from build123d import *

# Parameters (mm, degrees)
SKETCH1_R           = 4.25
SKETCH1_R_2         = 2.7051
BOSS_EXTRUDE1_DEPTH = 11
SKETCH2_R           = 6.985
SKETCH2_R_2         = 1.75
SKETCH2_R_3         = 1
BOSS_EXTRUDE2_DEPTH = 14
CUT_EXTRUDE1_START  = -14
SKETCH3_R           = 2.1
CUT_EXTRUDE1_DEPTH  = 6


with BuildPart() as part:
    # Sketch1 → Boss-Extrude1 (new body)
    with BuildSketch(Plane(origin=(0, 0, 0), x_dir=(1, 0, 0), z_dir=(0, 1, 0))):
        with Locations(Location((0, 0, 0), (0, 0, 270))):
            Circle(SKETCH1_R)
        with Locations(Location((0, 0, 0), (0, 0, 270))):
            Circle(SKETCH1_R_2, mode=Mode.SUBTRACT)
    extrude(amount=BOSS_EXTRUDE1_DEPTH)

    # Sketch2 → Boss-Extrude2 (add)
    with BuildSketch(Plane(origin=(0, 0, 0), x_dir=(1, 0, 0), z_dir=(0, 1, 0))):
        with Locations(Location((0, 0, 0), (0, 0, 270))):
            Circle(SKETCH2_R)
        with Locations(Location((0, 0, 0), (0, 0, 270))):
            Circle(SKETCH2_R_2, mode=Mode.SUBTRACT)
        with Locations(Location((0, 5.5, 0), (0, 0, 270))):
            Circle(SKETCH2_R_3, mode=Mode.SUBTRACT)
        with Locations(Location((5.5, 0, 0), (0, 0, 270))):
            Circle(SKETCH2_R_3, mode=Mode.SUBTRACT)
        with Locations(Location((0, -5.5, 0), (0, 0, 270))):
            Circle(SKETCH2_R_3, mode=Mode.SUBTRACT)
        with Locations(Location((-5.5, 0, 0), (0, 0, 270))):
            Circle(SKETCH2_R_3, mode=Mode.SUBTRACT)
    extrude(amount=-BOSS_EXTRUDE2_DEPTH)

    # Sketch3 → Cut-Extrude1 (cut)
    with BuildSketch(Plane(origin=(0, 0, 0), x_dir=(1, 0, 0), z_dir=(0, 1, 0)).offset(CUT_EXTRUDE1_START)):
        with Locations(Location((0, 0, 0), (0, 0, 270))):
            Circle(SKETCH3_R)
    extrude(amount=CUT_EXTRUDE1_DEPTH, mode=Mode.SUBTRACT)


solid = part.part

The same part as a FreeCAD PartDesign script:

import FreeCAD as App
import Part
import Sketcher
from FreeCAD import Vector
Q = App.Units.Quantity

doc = App.newDocument("Part")
body = doc.addObject("PartDesign::Body", "Body")

# Sketch on XZ plane
sketch1 = body.newObject("Sketcher::SketchObject", "Sketch")
sketch1.AttachmentSupport = (doc.getObject("XZ_Plane"), [""])
sketch1.MapMode = "FlatFace"
sketch1.addGeometry([
    Part.Circle(Vector(0, 0, 0), Vector(0, 0, 1), 4.25),
    Part.Circle(Vector(0, 0, 0), Vector(0, 0, 1), 2.7051),
], False)
sketch1.addConstraint([
    Sketcher.Constraint("Coincident", 0, 3, -1, 1),
    Sketcher.Constraint("Coincident", 1, 3, -1, 1),
    Sketcher.Constraint("Diameter", 0, Q("8.5 mm")),
    Sketcher.Constraint("Diameter", 1, Q("5.4102 mm")),
])
pad1 = body.newObject("PartDesign::Pad", "Pad")
pad1.Profile = sketch1
pad1.Length = 11
pad1.Reversed = True

# Sketch on XZ plane
sketch2 = body.newObject("Sketcher::SketchObject", "Sketch001")
sketch2.AttachmentSupport = (doc.getObject("XZ_Plane"), [""])
sketch2.MapMode = "FlatFace"
sketch2.addGeometry([
    Part.Circle(Vector(0, 0, 0), Vector(0, 0, 1), 6.985),  # 0
    Part.Circle(Vector(0, -5.5, 0), Vector(0, 0, 1), 1),  # 1
    Part.Circle(Vector(-5.5, 0, 0), Vector(0, 0, 1), 1),  # 2
    Part.Circle(Vector(5.5, 0, 0), Vector(0, 0, 1), 1),  # 3
    Part.Circle(Vector(0, 0, 0), Vector(0, 0, 1), 1.75),  # 4
    Part.Circle(Vector(0, 5.5, 0), Vector(0, 0, 1), 1),  # 5
], False)
sketch2.addConstraint([
    Sketcher.Constraint("Coincident", 0, 3, -1, 1),
    Sketcher.Constraint("Coincident", 4, 3, -1, 1),
    Sketcher.Constraint("Equal", 1, 2),
    Sketcher.Constraint("Equal", 2, 3),
    Sketcher.Constraint("Equal", 3, 5),
    Sketcher.Constraint("Symmetric", 2, 3, 3, 3, -1, 1),
    Sketcher.Constraint("Symmetric", 1, 3, 5, 3, -1, 1),
    Sketcher.Constraint("PointOnObject", 1, 3, -2),
    Sketcher.Constraint("PointOnObject", 2, 3, -1),
    Sketcher.Constraint("Diameter", 1, Q("2 mm")),
    Sketcher.Constraint("Diameter", 4, Q("3.5 mm")),
    Sketcher.Constraint("Diameter", 0, Q("13.97 mm")),
    Sketcher.Constraint("DistanceX", 2, 3, 3, 3, Q("11 mm")),
    Sketcher.Constraint("DistanceY", 1, 3, 5, 3, Q("11 mm")),
])
pad2 = body.newObject("PartDesign::Pad", "Pad001")
pad2.Profile = sketch2
pad2.Length = 14

# Sketch on XZ plane
sketch3 = body.newObject("Sketcher::SketchObject", "Sketch002")
sketch3.AttachmentSupport = (doc.getObject("XZ_Plane"), [""])
sketch3.MapMode = "FlatFace"
sketch3.AttachmentOffset = App.Placement(Vector(0, 0, 14), App.Rotation())
sketch3.addGeometry(Part.Circle(Vector(0, 0, 0), Vector(0, 0, 1), 2.1), False)
sketch3.addConstraint([
    Sketcher.Constraint("Coincident", 0, 3, -1, 1),
    Sketcher.Constraint("Diameter", 0, Q("4.2 mm")),
])
pocket1 = body.newObject("PartDesign::Pocket", "Pocket")
pocket1.Profile = sketch3
pocket1.Length = 6

doc.recompute()
